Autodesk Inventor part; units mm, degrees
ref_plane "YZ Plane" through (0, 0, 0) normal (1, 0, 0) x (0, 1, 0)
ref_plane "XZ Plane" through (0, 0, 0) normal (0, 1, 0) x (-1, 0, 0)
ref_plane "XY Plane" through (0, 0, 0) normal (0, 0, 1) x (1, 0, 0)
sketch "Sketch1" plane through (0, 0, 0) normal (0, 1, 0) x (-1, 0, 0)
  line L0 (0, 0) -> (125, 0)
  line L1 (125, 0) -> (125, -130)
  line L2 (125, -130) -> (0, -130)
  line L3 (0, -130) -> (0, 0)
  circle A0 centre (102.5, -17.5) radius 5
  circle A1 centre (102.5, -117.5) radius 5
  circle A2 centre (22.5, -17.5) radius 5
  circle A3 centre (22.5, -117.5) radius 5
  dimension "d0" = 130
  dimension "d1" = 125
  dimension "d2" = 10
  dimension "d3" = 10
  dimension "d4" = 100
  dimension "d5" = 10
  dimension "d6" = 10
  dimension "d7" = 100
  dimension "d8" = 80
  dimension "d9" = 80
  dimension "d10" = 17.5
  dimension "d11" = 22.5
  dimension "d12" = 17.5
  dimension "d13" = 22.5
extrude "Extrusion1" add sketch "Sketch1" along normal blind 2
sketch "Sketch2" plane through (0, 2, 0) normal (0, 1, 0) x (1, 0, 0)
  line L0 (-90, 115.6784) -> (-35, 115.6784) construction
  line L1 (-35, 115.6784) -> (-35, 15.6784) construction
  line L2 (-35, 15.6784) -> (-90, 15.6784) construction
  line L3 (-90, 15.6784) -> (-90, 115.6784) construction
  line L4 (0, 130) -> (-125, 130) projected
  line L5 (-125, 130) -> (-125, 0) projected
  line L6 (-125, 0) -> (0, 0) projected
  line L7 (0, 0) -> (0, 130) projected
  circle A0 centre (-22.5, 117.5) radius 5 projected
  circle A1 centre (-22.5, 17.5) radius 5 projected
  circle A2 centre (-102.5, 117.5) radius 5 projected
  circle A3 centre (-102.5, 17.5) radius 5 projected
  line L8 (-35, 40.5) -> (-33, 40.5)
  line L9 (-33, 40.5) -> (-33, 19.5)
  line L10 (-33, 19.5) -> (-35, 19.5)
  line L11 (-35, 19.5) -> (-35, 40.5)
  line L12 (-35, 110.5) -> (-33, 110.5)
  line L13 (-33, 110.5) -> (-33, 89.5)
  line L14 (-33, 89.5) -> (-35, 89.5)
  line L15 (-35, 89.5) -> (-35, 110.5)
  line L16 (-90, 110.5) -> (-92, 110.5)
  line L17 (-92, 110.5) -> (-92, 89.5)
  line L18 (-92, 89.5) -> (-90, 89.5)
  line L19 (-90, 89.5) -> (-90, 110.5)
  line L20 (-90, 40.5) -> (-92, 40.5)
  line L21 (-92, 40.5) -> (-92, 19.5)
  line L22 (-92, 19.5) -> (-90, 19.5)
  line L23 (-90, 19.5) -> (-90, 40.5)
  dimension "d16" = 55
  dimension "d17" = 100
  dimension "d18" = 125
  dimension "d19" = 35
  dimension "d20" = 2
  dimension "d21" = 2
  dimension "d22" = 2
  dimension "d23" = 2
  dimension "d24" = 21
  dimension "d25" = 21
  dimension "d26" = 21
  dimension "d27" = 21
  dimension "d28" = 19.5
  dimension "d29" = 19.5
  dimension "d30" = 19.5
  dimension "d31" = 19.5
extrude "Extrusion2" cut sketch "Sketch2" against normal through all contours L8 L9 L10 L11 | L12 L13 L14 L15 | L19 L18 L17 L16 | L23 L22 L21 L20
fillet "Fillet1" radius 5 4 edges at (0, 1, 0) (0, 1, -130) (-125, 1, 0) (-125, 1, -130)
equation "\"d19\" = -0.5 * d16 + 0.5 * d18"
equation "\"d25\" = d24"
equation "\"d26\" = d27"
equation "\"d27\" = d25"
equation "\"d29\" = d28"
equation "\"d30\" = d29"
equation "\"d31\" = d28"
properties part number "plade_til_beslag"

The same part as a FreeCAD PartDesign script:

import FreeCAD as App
import Part
import Sketcher

V = App.Vector


def edges_at(feature, points):
    """Names of the edges that pass closest to the given points."""
    edges = feature.Shape.Edges
    near = lambda p: min(range(len(edges)), key=lambda i: edges[i].distToShape(Part.Vertex(*p))[0])
    return sorted({f"Edge{near(p) + 1}" for p in points})


def add_polygon(sketch, points):
    """Adds a closed chain of lines whose ends are joined by coincident constraints."""
    first, n = sketch.GeometryCount, len(points)
    for a, b in zip(points, points[1:] + points[:1]):
        sketch.addGeometry(Part.LineSegment(App.Vector(*a, 0), App.Vector(*b, 0)), False)
    for i in range(n):
        sketch.addConstraint(Sketcher.Constraint("Coincident", first + i, 2, first + (i + 1) % n, 1))

doc = App.newDocument("Part")
params = doc.addObject("Spreadsheet::Sheet", "Params")
for row, (alias, value) in enumerate([
    ("sketch1_diameter", "10 mm"),
    ("sketch1_width", "125 mm"),
    ("sketch1_height", "130 mm"),
    ("pad1_length", "2 mm"),
    ("sketch2_width", "2 mm"),
    ("sketch2_height", "21 mm"),
    ("fillet_radius", "5 mm"),
], start=1):
    params.set(f"A{row}", alias)
    params.set(f"B{row}", "=" + value)
    params.setAlias(f"B{row}", alias)

body = doc.addObject("PartDesign::Body", "Body")

sketch1 = doc.addObject("Sketcher::SketchObject", "Sketch")
body.addObject(sketch1)
sketch1.AttachmentSupport = (doc.XZ_Plane, [""])
sketch1.MapMode = "FlatFace"
add_polygon(sketch1, [(-125, 0), (0, 0), (0, -130), (-125, -130)])
sketch1.addGeometry(Part.Circle(V(-22.5, -117.5, 0), V(0, 0, 1), 5), False)
sketch1.addGeometry(Part.Circle(V(-102.5, -117.5, 0), V(0, 0, 1), 5), False)
sketch1.addGeometry(Part.Circle(V(-22.5, -17.5, 0), V(0, 0, 1), 5), False)
sketch1.addGeometry(Part.Circle(V(-102.5, -17.5, 0), V(0, 0, 1), 5), False)
sketch1.addConstraint([
    Sketcher.Constraint("Horizontal", 0),
    Sketcher.Constraint("Vertical", 1),
    Sketcher.Constraint("Horizontal", 2),
    Sketcher.Constraint("Vertical", 3),
    Sketcher.Constraint("Coincident", 0, 2, -1, 1),
    Sketcher.Constraint("Equal", 4, 5),
    Sketcher.Constraint("Equal", 5, 6),
    Sketcher.Constraint("Equal", 6, 7),
    Sketcher.Constraint("Horizontal", 4, 3, 5, 3),
    Sketcher.Constraint("Horizontal", 6, 3, 7, 3),
    Sketcher.Constraint("Vertical", 4, 3, 6, 3),
    Sketcher.Constraint("Vertical", 5, 3, 7, 3),
    Sketcher.Constraint("Diameter", 4, 10.0),
    Sketcher.Constraint("DistanceX", 0, 1, 0, 2, 125.0),
    Sketcher.Constraint("DistanceY", 1, 2, 1, 1, 130.0),
    Sketcher.Constraint("DistanceX", 5, 3, 4, 3, 80.0),
    Sketcher.Constraint("DistanceY", 4, 3, 6, 3, 100.0),
    Sketcher.Constraint("DistanceX", 4, 3, -1, 1, 22.5),
    Sketcher.Constraint("DistanceY", 6, 3, -1, 1, 17.5),
])
sketch1.setExpression("Constraints[16]", "Params.sketch1_diameter")
sketch1.setExpression("Constraints[17]", "Params.sketch1_width")
sketch1.setExpression("Constraints[18]", "Params.sketch1_height")
pad1 = doc.addObject("PartDesign::Pad", "Pad")
body.addObject(pad1)
pad1.Profile = sketch1
pad1.setExpression("Length", "Params.pad1_length")
pad1.Reversed = True

sketch2 = doc.addObject("Sketcher::SketchObject", "Sketch001")
body.addObject(sketch2)
sketch2.AttachmentSupport = (doc.XZ_Plane, [""])
sketch2.MapMode = "FlatFace"
sketch2.AttachmentOffset = App.Placement(V(0, 0, -2), App.Rotation())
add_polygon(sketch2, [(-33, -40.5), (-35, -40.5), (-35, -19.5), (-33, -19.5)])
add_polygon(sketch2, [(-33, -110.5), (-35, -110.5), (-35, -89.5), (-33, -89.5)])
add_polygon(sketch2, [(-90, -89.5), (-90, -110.5), (-92, -110.5), (-92, -89.5)])
add_polygon(sketch2, [(-90, -19.5), (-90, -40.5), (-92, -40.5), (-92, -19.5)])
sketch2.addConstraint([
    Sketcher.Constraint("Horizontal", 0),
    Sketcher.Constraint("Vertical", 1),
    Sketcher.Constraint("Horizontal", 2),
    Sketcher.Constraint("Vertical", 3),
    Sketcher.Constraint("Horizontal", 4),
    Sketcher.Constraint("Vertical", 5),
    Sketcher.Constraint("Horizontal", 6),
    Sketcher.Constraint("Vertical", 7),
    Sketcher.Constraint("Vertical", 8),
    Sketcher.Constraint("Horizontal", 9),
    Sketcher.Constraint("Vertical", 10),
    Sketcher.Constraint("Horizontal", 11),
    Sketcher.Constraint("Vertical", 12),
    Sketcher.Constraint("Horizontal", 13),
    Sketcher.Constraint("Vertical", 14),
    Sketcher.Constraint("Horizontal", 15),
    Sketcher.Constraint("Horizontal", 7, 2, 8, 2),
    Sketcher.Constraint("Horizontal", 6, 2, 10, 2),
    Sketcher.Constraint("Horizontal", 3, 2, 12, 2),
    Sketcher.Constraint("Horizontal", 2, 2, 14, 2),
    Sketcher.Constraint("Vertical", 1, 2, 4, 2),
    Sketcher.Constraint("Vertical", 3, 2, 6, 2),
    Sketcher.Constraint("Vertical", 11, 2, 12, 2),
    Sketcher.Constraint("Vertical", 10, 2, 13, 2),
    Sketcher.Constraint("Equal", 6, 9),
    Sketcher.Constraint("Equal", 3, 5),
    Sketcher.Constraint("DistanceX", 0, 2, 0, 1, 2.0),
    Sketcher.Constraint("DistanceY", 1, 1, 1, 2, 21.0),
    Sketcher.Constraint("DistanceX", 0, 2, -1, 1, 35.0),
    Sketcher.Constraint("DistanceX", 8, 2, 4, 2, 55.0),
    Sketcher.Constraint("DistanceY", 1, 2, -1, 1, 19.5),
    Sketcher.Constraint("DistanceY", 4, 2, 0, 2, 70.0),
])
sketch2.setExpression("Constraints[42]", "Params.sketch2_width")
sketch2.setExpression("Constraints[43]", "Params.sketch2_height")
pocket1 = doc.addObject("PartDesign::Pocket", "Pocket")
body.addObject(pocket1)
pocket1.Profile = sketch2
pocket1.Type = "ThroughAll"
pocket1.Reversed = True
doc.recompute()

fillet = doc.addObject("PartDesign::Fillet", "Fillet")
body.addObject(fillet)
fillet.Base = (pocket1, edges_at(pocket1, [
    (0, 1, 0),
    (0, 1, -130),
    (-125, 1, 0),
    (-125, 1, -130),
]))
fillet.setExpression("Radius", "Params.fillet_radius")

doc.recompute()
